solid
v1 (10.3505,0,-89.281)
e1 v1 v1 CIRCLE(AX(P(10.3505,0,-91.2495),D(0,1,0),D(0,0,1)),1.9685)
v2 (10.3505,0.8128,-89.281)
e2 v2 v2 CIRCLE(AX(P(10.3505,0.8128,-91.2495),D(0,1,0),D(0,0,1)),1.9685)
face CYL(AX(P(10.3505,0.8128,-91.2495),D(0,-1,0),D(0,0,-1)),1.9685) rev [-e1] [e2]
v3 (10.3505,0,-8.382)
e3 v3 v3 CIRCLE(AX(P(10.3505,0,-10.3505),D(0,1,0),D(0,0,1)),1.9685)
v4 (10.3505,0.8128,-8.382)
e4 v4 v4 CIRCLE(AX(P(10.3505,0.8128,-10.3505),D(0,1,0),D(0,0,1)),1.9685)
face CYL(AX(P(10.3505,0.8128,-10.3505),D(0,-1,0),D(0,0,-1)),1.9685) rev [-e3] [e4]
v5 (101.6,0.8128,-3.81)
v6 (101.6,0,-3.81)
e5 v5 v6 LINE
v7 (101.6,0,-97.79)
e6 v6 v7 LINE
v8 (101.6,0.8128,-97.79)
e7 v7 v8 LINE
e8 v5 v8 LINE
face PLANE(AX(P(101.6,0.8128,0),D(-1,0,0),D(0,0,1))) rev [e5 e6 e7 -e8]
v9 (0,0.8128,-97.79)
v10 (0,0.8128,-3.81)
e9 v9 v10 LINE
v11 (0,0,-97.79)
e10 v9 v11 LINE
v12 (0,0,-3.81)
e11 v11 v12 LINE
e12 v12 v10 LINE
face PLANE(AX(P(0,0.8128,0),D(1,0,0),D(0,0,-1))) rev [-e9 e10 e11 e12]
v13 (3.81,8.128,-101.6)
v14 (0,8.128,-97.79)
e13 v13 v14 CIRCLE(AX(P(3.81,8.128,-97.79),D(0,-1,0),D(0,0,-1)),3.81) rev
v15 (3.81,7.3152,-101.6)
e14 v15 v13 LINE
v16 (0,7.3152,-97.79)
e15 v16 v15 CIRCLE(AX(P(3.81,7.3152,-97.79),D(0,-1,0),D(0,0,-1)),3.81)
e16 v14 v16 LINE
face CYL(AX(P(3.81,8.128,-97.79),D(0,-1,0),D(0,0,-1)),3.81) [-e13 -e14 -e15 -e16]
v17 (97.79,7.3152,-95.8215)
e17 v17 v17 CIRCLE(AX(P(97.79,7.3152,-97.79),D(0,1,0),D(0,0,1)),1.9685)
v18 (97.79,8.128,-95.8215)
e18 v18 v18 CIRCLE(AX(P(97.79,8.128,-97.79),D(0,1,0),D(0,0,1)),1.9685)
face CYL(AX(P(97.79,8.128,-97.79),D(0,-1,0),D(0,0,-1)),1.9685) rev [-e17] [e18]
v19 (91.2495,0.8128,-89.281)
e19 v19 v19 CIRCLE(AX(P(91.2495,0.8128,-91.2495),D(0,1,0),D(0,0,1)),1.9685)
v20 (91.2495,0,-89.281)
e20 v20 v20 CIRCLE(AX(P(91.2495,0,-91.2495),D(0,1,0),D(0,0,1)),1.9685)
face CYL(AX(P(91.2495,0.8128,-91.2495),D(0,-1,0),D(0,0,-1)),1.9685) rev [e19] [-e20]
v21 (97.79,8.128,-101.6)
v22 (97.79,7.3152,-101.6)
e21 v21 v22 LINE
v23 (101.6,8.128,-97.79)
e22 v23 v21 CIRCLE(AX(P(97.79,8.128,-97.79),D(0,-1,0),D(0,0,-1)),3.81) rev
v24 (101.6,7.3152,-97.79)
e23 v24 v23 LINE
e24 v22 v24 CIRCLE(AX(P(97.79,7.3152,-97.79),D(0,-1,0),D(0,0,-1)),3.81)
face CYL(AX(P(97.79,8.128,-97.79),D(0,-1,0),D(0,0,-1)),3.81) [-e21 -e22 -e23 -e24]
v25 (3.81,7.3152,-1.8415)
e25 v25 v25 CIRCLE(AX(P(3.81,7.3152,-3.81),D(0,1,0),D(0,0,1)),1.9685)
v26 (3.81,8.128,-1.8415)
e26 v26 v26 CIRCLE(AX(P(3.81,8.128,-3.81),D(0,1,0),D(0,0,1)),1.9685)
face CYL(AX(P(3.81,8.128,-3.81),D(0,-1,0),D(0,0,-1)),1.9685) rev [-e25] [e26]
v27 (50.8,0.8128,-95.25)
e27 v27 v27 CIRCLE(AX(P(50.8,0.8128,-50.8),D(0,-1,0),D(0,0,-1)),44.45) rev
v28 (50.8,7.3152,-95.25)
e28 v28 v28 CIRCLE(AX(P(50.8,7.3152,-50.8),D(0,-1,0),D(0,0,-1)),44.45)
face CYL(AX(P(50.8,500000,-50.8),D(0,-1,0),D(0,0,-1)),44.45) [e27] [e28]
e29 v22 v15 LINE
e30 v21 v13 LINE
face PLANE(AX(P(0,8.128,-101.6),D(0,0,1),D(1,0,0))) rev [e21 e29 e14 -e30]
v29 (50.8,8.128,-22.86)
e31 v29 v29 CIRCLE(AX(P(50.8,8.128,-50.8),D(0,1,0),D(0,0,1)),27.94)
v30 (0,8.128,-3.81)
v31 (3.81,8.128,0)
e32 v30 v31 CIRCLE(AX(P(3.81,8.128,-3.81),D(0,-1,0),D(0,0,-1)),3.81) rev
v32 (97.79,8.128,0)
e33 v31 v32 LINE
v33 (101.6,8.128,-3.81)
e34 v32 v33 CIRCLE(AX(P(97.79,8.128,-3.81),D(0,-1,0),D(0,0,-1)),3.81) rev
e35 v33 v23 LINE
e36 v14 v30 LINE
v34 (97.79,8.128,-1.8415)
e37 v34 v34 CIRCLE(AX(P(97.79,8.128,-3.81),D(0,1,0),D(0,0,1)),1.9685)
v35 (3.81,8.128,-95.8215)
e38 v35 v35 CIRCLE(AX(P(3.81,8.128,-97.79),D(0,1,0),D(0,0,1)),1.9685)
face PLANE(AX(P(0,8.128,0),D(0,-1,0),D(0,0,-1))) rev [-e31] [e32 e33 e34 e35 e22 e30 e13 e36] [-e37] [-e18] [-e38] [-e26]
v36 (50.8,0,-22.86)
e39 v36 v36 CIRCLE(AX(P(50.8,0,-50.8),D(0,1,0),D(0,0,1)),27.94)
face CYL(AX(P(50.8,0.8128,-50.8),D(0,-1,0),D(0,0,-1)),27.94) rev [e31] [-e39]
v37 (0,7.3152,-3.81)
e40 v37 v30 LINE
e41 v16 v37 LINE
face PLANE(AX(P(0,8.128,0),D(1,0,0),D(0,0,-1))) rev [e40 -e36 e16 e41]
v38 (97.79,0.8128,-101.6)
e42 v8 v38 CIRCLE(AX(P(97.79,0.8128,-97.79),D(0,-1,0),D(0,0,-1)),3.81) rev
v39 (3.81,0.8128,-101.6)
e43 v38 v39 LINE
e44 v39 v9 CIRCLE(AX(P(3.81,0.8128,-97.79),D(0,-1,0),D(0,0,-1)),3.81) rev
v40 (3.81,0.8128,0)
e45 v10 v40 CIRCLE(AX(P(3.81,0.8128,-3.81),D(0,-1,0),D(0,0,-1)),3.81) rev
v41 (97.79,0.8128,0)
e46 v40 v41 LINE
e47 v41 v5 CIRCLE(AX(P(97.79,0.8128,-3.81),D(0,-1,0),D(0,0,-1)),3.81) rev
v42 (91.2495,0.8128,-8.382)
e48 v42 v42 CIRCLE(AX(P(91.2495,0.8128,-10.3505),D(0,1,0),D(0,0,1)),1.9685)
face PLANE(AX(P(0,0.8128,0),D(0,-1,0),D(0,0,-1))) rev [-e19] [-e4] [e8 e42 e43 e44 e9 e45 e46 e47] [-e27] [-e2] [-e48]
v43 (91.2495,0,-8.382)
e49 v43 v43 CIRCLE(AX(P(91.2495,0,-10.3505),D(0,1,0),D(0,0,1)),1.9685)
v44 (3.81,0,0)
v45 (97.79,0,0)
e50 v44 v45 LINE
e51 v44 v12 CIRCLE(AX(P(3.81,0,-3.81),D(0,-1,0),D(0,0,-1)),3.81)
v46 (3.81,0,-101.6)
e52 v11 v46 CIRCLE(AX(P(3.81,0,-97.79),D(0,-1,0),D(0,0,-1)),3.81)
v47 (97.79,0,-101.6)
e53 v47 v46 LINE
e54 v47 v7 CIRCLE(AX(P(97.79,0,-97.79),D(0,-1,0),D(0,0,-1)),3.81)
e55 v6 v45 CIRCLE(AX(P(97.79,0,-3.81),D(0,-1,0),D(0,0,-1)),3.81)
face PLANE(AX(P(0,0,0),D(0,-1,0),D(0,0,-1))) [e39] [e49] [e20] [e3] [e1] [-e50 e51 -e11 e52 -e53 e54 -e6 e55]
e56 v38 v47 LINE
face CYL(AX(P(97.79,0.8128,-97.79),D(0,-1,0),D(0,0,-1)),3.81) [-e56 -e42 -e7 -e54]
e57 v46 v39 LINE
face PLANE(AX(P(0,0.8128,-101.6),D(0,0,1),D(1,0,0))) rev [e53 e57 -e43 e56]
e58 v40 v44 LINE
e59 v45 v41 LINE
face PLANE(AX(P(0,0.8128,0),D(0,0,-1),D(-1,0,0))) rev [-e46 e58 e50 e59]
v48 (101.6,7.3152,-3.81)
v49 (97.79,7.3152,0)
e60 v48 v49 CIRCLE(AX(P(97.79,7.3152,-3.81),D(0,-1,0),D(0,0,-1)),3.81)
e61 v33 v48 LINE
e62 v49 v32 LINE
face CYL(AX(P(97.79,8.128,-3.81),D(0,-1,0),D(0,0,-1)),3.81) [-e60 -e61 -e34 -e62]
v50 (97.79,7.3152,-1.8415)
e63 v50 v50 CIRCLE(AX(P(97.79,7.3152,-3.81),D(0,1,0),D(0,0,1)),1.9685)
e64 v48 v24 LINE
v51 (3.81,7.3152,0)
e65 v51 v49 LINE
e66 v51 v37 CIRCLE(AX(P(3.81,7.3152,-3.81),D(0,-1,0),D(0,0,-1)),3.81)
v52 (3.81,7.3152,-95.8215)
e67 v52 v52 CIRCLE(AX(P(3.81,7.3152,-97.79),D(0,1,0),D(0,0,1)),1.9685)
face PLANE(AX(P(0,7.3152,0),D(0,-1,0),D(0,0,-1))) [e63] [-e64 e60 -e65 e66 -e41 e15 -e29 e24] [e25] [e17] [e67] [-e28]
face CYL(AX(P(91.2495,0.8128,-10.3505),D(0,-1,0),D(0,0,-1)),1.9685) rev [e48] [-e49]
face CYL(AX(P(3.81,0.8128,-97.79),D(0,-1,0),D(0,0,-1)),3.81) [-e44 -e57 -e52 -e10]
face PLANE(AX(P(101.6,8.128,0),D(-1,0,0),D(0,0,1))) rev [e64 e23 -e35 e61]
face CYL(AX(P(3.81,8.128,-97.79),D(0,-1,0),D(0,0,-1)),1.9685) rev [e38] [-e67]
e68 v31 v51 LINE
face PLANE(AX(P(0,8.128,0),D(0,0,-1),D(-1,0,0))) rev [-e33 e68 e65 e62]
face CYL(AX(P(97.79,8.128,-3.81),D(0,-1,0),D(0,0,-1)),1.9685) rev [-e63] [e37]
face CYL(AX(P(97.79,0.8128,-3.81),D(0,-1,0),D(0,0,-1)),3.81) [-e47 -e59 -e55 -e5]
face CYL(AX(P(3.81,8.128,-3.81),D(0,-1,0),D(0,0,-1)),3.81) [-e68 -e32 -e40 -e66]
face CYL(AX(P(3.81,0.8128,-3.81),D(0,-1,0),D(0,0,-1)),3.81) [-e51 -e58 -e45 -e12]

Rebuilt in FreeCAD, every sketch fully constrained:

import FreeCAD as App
import Part
import Sketcher
from FreeCAD import Vector
Q = App.Units.Quantity


def edges_at(feature, points):
    """Names of the edges that pass closest to the given points."""
    edges = feature.Shape.Edges
    near = lambda p: min(range(len(edges)), key=lambda i: edges[i].distToShape(Part.Vertex(*p))[0])
    return sorted({f"Edge{near(p) + 1}" for p in points})

doc = App.newDocument("Part")
body = doc.addObject("PartDesign::Body", "Body")

# Sketch on XZ plane
sketch1 = body.newObject("Sketcher::SketchObject", "Sketch")
sketch1.AttachmentSupport = (doc.getObject("XZ_Plane"), [""])
sketch1.MapMode = "FlatFace"
sketch1.addGeometry([
    Part.LineSegment(Vector(0, -101.6, 0), Vector(0, 0, 0)),  # 0
    Part.LineSegment(Vector(0, 0, 0), Vector(101.6, 0, 0)),  # 1
    Part.LineSegment(Vector(101.6, 0, 0), Vector(101.6, -101.6, 0)),  # 2
    Part.LineSegment(Vector(101.6, -101.6, 0), Vector(0, -101.6, 0)),  # 3
    Part.Circle(Vector(10.4, -10.4, 0), Vector(0, 0, 1), 2),  # 4
    Part.Circle(Vector(91.2, -10.4, 0), Vector(0, 0, 1), 2),  # 5
    Part.Circle(Vector(10.4, -91.2, 0), Vector(0, 0, 1), 2),  # 6
    Part.Circle(Vector(50.8, -50.8, 0), Vector(0, 0, 1), 27.9),  # 7
    Part.Circle(Vector(91.2, -91.2, 0), Vector(0, 0, 1), 2),  # 8
], False)
sketch1.addConstraint([
    Sketcher.Constraint("Coincident", 0, 2, 1, 1),
    Sketcher.Constraint("Coincident", 1, 2, 2, 1),
    Sketcher.Constraint("Coincident", 2, 2, 3, 1),
    Sketcher.Constraint("Coincident", 3, 2, 0, 1),
    Sketcher.Constraint("Vertical", 0),
    Sketcher.Constraint("Horizontal", 1),
    Sketcher.Constraint("Vertical", 2),
    Sketcher.Constraint("Horizontal", 3),
    Sketcher.Constraint("Coincident", 0, 2, -1, 1),
    Sketcher.Constraint("Equal", 4, 5),
    Sketcher.Constraint("Equal", 5, 6),
    Sketcher.Constraint("Equal", 6, 8),
    Sketcher.Constraint("Horizontal", 4, 3, 5, 3),
    Sketcher.Constraint("Horizontal", 6, 3, 8, 3),
    Sketcher.Constraint("Vertical", 4, 3, 6, 3),
    Sketcher.Constraint("Vertical", 5, 3, 8, 3),
    Sketcher.Constraint("Equal", 3, 0),
    Sketcher.Constraint("Diameter", 7, Q("2.2 in")),
    Sketcher.Constraint("DistanceX", 1, 1, 1, 2, Q("4 in")),
    Sketcher.Constraint("Diameter", 4, Q("0.155 in")),
    Sketcher.Constraint("DistanceX", -1, 1, 7, 3, Q("2 in")),
    Sketcher.Constraint("DistanceY", 7, 3, -1, 1, Q("2 in")),
    Sketcher.Constraint("DistanceX", 4, 3, 5, 3, Q("3.185 in")),
    Sketcher.Constraint("DistanceY", 6, 3, 4, 3, Q("3.185 in")),
    Sketcher.Constraint("DistanceX", -1, 1, 4, 3, Q("0.4075 in")),
    Sketcher.Constraint("DistanceY", 4, 3, -1, 1, Q("0.4075 in")),
])
pad1 = body.newObject("PartDesign::Pad", "Pad")
pad1.Profile = sketch1
pad1.Length = Q("0.032 in")
pad1.Reversed = True
doc.recompute()

fillet = body.newObject("PartDesign::Fillet", "Fillet")
fillet.Base = (pad1, edges_at(pad1, [
    (0, 0.406, -101.6),
    (101.6, 0.406, -101.6),
    (101.6, 0.406, 0),
    (0, 0.406, 0),
]))
fillet.Radius = Q("0.15 in")
body2 = doc.addObject("PartDesign::Body", "Body001")
body2.AllowCompound = True

# Sketch on XZ plane
sketch2 = body2.newObject("Sketcher::SketchObject", "Sketch001")
sketch2.AttachmentSupport = (doc.getObject("XZ_Plane001"), [""])
sketch2.MapMode = "FlatFace"
sketch2.AttachmentOffset = App.Placement(Vector(0, 0, -0.288 * 25.4), App.Rotation())
sketch2.addGeometry([
    Part.LineSegment(Vector(0, -101.6, 0), Vector(0, 0, 0)),  # 0
    Part.LineSegment(Vector(0, 0, 0), Vector(101.6, 0, 0)),  # 1
    Part.LineSegment(Vector(101.6, 0, 0), Vector(101.6, -101.6, 0)),  # 2
    Part.LineSegment(Vector(101.6, -101.6, 0), Vector(0, -101.6, 0)),  # 3
    Part.Circle(Vector(3.8, -3.8, 0), Vector(0, 0, 1), 2),  # 4
    Part.Circle(Vector(50.8, -50.8, 0), Vector(0, 0, 1), 27.9),  # 5
    Part.Circle(Vector(97.8, -3.8, 0), Vector(0, 0, 1), 2),  # 6
    Part.Circle(Vector(3.8, -97.8, 0), Vector(0, 0, 1), 2),  # 7
    Part.Circle(Vector(97.8, -97.8, 0), Vector(0, 0, 1), 2),  # 8
], False)
sketch2.addConstraint([
    Sketcher.Constraint("Coincident", 0, 2, 1, 1),
    Sketcher.Constraint("Coincident", 1, 2, 2, 1),
    Sketcher.Constraint("Coincident", 2, 2, 3, 1),
    Sketcher.Constraint("Coincident", 3, 2, 0, 1),
    Sketcher.Constraint("Vertical", 0),
    Sketcher.Constraint("Horizontal", 1),
    Sketcher.Constraint("Vertical", 2),
    Sketcher.Constraint("Horizontal", 3),
    Sketcher.Constraint("Coincident", 0, 2, -1, 1),
    Sketcher.Constraint("Equal", 4, 6),
    Sketcher.Constraint("Equal", 6, 7),
    Sketcher.Constraint("Equal", 7, 8),
    Sketcher.Constraint("Horizontal", 4, 3, 6, 3),
    Sketcher.Constraint("Horizontal", 7, 3, 8, 3),
    Sketcher.Constraint("Vertical", 4, 3, 7, 3),
    Sketcher.Constraint("Vertical", 6, 3, 8, 3),
    Sketcher.Constraint("Equal", 3, 0),
    Sketcher.Constraint("Diameter", 5, Q("2.2 in")),
    Sketcher.Constraint("DistanceX", 1, 1, 1, 2, Q("4 in")),
    Sketcher.Constraint("Diameter", 4, Q("0.155 in")),
    Sketcher.Constraint("DistanceX", -1, 1, 5, 3, Q("2 in")),
    Sketcher.Constraint("DistanceY", 5, 3, -1, 1, Q("2 in")),
    Sketcher.Constraint("DistanceX", 4, 3, 6, 3, Q("3.7 in")),
    Sketcher.Constraint("DistanceY", 7, 3, 4, 3, Q("3.7 in")),
    Sketcher.Constraint("DistanceX", -1, 1, 4, 3, Q("0.15 in")),
    Sketcher.Constraint("DistanceY", 4, 3, -1, 1, Q("0.15 in")),
])
pad2 = body2.newObject("PartDesign::Pad", "Pad001")
pad2.Profile = sketch2
pad2.Length = Q("0.032 in")
pad2.Reversed = True
doc.recompute()

fillet2 = body2.newObject("PartDesign::Fillet", "Fillet001")
fillet2.Base = (pad2, edges_at(pad2, [
    (0, 7.722, -101.6),
    (101.6, 7.722, -101.6),
    (101.6, 7.722, 0),
    (0, 7.722, 0),
]))
fillet2.Radius = Q("0.15 in")
doc.recompute()

boolean = body2.newObject("PartDesign::Boolean", "Boolean")
boolean.Type = "Fuse"
boolean.addObjects([body])

# Sketch on XZ plane
sketch3 = body2.newObject("Sketcher::SketchObject", "Sketch002")
sketch3.AttachmentSupport = (doc.getObject("XZ_Plane001"), [""])
sketch3.MapMode = "FlatFace"
sketch3.AttachmentOffset = App.Placement(Vector(0, 0, -0.032 * 25.4), App.Rotation())
sketch3.addGeometry([
    Part.Circle(Vector(51, -51, 0), Vector(0, 0, 1), 44),
    Part.Circle(Vector(51, -51, 0), Vector(0, 0, 1), 28),
], False)
sketch3.addConstraint([
    Sketcher.Constraint("Coincident", 1, 3, 0, 3),
    Sketcher.Constraint("Diameter", 0, Q("3.5 in")),
    Sketcher.Constraint("Diameter", 1, Q("2.2 in")),
    Sketcher.Constraint("DistanceX", -1, 1, 0, 3, Q("2 in")),
    Sketcher.Constraint("DistanceY", 0, 3, -1, 1, Q("2 in")),
])
pad3 = body2.newObject("PartDesign::Pad", "Pad002")
pad3.Profile = sketch3
pad3.Length = Q("0.256 in")
pad3.Reversed = True

doc.recompute()
